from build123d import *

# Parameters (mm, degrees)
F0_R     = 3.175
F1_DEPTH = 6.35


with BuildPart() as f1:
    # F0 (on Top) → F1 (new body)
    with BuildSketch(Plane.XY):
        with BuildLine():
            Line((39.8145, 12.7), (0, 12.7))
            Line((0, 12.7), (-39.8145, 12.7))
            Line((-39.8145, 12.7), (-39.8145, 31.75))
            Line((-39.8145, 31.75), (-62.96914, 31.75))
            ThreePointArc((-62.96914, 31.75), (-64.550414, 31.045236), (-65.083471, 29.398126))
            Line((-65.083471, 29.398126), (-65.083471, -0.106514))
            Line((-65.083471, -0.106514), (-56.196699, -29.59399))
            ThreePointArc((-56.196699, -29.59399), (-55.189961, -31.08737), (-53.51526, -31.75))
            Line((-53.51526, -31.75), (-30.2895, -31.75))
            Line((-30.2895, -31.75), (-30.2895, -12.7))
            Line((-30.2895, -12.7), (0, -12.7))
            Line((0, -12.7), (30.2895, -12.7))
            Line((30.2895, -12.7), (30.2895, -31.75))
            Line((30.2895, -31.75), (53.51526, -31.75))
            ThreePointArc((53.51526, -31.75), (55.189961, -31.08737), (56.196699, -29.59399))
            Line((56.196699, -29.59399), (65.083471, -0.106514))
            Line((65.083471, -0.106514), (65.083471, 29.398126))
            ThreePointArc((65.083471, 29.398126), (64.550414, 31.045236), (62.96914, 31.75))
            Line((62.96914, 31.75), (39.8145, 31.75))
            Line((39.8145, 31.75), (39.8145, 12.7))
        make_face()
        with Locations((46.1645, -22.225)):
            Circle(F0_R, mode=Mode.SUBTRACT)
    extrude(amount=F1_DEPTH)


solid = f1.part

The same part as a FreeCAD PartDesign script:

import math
import FreeCAD as App
import Part
import Sketcher
Q = App.Units.Quantity

doc = App.newDocument("Part")
params = doc.addObject("Spreadsheet::Sheet", "Params")
for row, (alias, value) in enumerate([
    ("sketch1_diameter", "0.25 in"),
    ("sketch1_height", "0.75 in"),
    ("sketch1_width", "3.135 in"),
    ("sketch1_width2", "2.385 in"),
    ("pad1_length", "0.25 in"),
], start=1):
    params.set(f"A{row}", alias)
    params.set(f"B{row}", "=" + value)
    params.setAlias(f"B{row}", alias)

body = doc.addObject("PartDesign::Body", "Body")

# Sketch on XY plane
sketch1 = body.newObject("Sketcher::SketchObject", "Sketch")
sketch1.AttachmentSupport = (doc.getObject("XY_Plane"), [""])
sketch1.MapMode = "FlatFace"
sketch1.addGeometry([
    Part.LineSegment(App.Vector(39.8, 12.7, 0), App.Vector(-39.8, 12.7, 0)),  # 0
    Part.LineSegment(App.Vector(-39.8, 12.7, 0), App.Vector(-39.8, 31.8, 0)),  # 1
    Part.LineSegment(App.Vector(-39.8, 31.8, 0), App.Vector(-63, 31.8, 0)),  # 2
    Part.ArcOfCircle(Part.Circle(App.Vector(-63, 29.6, 0), App.Vector(0, 0, 1), 2.1), math.radians(90), math.radians(186)),  # 3
    Part.LineSegment(App.Vector(-65.1, 29.4, 0), App.Vector(-65.1, -0.1, 0)),  # 4
    Part.LineSegment(App.Vector(-65.1, -0.1, 0), App.Vector(-56.2, -29.6, 0)),  # 5
    Part.ArcOfCircle(Part.Circle(App.Vector(-53.3, -28.7, 0), App.Vector(0, 0, 1), 3), math.radians(-163), math.radians(-94)),  # 6
    Part.LineSegment(App.Vector(-53.5, -31.8, 0), App.Vector(-30.3, -31.8, 0)),  # 7
    Part.LineSegment(App.Vector(-30.3, -31.8, 0), App.Vector(-30.3, -12.7, 0)),  # 8
    Part.LineSegment(App.Vector(-30.3, -12.7, 0), App.Vector(30.3, -12.7, 0)),  # 9
    Part.LineSegment(App.Vector(30.3, -12.7, 0), App.Vector(30.3, -31.8, 0)),  # 10
    Part.LineSegment(App.Vector(30.3, -31.8, 0), App.Vector(53.5, -31.8, 0)),  # 11
    Part.ArcOfCircle(Part.Circle(App.Vector(53.3, -28.7, 0), App.Vector(0, 0, 1), 3), math.radians(-86), math.radians(-17)),  # 12
    Part.LineSegment(App.Vector(56.2, -29.6, 0), App.Vector(65.1, -0.1, 0)),  # 13
    Part.LineSegment(App.Vector(65.1, -0.1, 0), App.Vector(65.1, 29.4, 0)),  # 14
    Part.ArcOfCircle(Part.Circle(App.Vector(63, 29.6, 0), App.Vector(0, 0, 1), 2.1), math.radians(-6), math.radians(90)),  # 15
    Part.LineSegment(App.Vector(63, 31.8, 0), App.Vector(39.8, 31.8, 0)),  # 16
    Part.LineSegment(App.Vector(39.8, 31.8, 0), App.Vector(39.8, 12.7, 0)),  # 17
    Part.Circle(App.Vector(46.2, -22.2, 0), App.Vector(0, 0, 1), 3.2),  # 18
], False)
sketch1.addConstraint([
    Sketcher.Constraint("Coincident", 0, 2, 1, 1),
    Sketcher.Constraint("Coincident", 1, 2, 2, 1),
    Sketcher.Constraint("Tangent", 2, 2, 3, 1),
    Sketcher.Constraint("Coincident", 3, 2, 4, 1),
    Sketcher.Constraint("Coincident", 4, 2, 5, 1),
    Sketcher.Constraint("Tangent", 5, 2, 6, 1),
    Sketcher.Constraint("Coincident", 6, 2, 7, 1),
    Sketcher.Constraint("Coincident", 7, 2, 8, 1),
    Sketcher.Constraint("Coincident", 8, 2, 9, 1),
    Sketcher.Constraint("Coincident", 9, 2, 10, 1),
    Sketcher.Constraint("Coincident", 10, 2, 11, 1),
    Sketcher.Constraint("Coincident", 11, 2, 12, 1),
    Sketcher.Constraint("Tangent", 12, 2, 13, 1),
    Sketcher.Constraint("Coincident", 13, 2, 14, 1),
    Sketcher.Constraint("Coincident", 14, 2, 15, 1),
    Sketcher.Constraint("Tangent", 15, 2, 16, 1),
    Sketcher.Constraint("Coincident", 16, 2, 17, 1),
    Sketcher.Constraint("Coincident", 17, 2, 0, 1),
    Sketcher.Constraint("Horizontal", 0),
    Sketcher.Constraint("Vertical", 1),
    Sketcher.Constraint("Horizontal", 2),
    Sketcher.Constraint("Vertical", 4),
    Sketcher.Constraint("Horizontal", 7),
    Sketcher.Constraint("Vertical", 8),
    Sketcher.Constraint("Horizontal", 9),
    Sketcher.Constraint("Vertical", 10),
    Sketcher.Constraint("Horizontal", 11),
    Sketcher.Constraint("Vertical", 14),
    Sketcher.Constraint("Horizontal", 16),
    Sketcher.Constraint("Vertical", 17),
    Sketcher.Constraint("Equal", 6, 12),
    Sketcher.Constraint("Equal", 3, 15),
    Sketcher.Constraint("Symmetric", 6, 3, 12, 3, -2),
    Sketcher.Constraint("Symmetric", 3, 3, 15, 3, -2),
    Sketcher.Constraint("Symmetric", 7, 2, 10, 2, -2),
    Sketcher.Constraint("Symmetric", 4, 2, 13, 2, -2),
    Sketcher.Constraint("Equal", 2, 16),
    Sketcher.Constraint("Equal", 1, 8),
    Sketcher.Constraint("Diameter", 18, Q("0.25 in")),
    Sketcher.Constraint("DistanceY", 8, 2, 0, 2, Q("1 in")),
    Sketcher.Constraint("DistanceY", 1, 1, 1, 2, Q("0.75 in")),
    Sketcher.Constraint("DistanceY", -1, 1, 0, 2, Q("0.5 in")),
    Sketcher.Constraint("Radius", 6, Q("0.1198001 in")),
    Sketcher.Constraint("DistanceX", 0, 2, 0, 1, Q("3.135 in")),
    Sketcher.Constraint("DistanceX", 9, 1, 9, 2, Q("2.385 in")),
    Sketcher.Constraint("DistanceX", 2, 2, 2, 1, Q("0.9116 in")),
    Sketcher.Constraint("DistanceX", 7, 1, 7, 2, Q("0.9144 in")),
    Sketcher.Constraint("DistanceY", 4, 2, 4, 1, Q("1.1616 in")),
    Sketcher.Constraint("DistanceY", 18, 3, -1, 1, Q("0.875 in")),
    Sketcher.Constraint("DistanceX", 0, 2, 18, 3, Q("3.385 in")),
    Sketcher.Constraint("Distance", 5, Q("1.2125 in")),
    Sketcher.Constraint("Radius", 3, 2.126326),
    Sketcher.Constraint("DistanceX", 5, 2, -1, 1, 56.196699),
])
sketch1.setExpression("Constraints[38]", "Params.sketch1_diameter")
sketch1.setExpression("Constraints[40]", "Params.sketch1_height")
sketch1.setExpression("Constraints[43]", "Params.sketch1_width")
sketch1.setExpression("Constraints[44]", "Params.sketch1_width2")
pad1 = body.newObject("PartDesign::Pad", "Pad")
pad1.Profile = sketch1
pad1.setExpression("Length", "Params.pad1_length")

doc.recompute()
